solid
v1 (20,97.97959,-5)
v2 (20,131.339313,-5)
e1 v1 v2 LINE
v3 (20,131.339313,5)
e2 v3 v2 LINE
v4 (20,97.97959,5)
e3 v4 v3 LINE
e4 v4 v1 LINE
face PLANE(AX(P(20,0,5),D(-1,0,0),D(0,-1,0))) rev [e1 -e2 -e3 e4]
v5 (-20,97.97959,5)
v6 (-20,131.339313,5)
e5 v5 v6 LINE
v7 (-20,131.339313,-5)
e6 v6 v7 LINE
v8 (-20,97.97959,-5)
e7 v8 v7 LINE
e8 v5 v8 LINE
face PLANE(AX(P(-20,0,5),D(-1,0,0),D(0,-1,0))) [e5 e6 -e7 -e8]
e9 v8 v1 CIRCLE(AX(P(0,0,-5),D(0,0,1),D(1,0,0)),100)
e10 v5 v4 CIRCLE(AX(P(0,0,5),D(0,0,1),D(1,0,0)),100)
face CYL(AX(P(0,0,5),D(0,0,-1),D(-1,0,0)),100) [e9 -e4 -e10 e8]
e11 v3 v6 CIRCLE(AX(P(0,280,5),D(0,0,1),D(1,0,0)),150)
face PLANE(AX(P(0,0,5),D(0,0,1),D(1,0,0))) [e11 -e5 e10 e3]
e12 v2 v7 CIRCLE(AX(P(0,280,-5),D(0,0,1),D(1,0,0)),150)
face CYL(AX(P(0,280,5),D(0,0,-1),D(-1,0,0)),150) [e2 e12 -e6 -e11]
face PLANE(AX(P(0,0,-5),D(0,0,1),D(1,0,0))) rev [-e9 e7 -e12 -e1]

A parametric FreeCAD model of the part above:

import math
import FreeCAD as App
import Part
import Sketcher
from FreeCAD import Vector

doc = App.newDocument("Part")
body = doc.addObject("PartDesign::Body", "Body")

# Sketch on XY plane
sketch1 = body.newObject("Sketcher::SketchObject", "Sketch")
sketch1.AttachmentSupport = (doc.getObject("XY_Plane"), [""])
sketch1.MapMode = "FlatFace"
sketch1.addGeometry([
    Part.ArcOfCircle(Part.Circle(Vector(0, 280, 0), Vector(0, 0, 1), 150), math.radians(-82), math.radians(262)),
    Part.LineSegment(Vector(-20, 131, 0), Vector(-20, 98, 0)),
    Part.ArcOfCircle(Part.Circle(Vector(0, 0, 0), Vector(0, 0, 1), 100), math.radians(102), math.radians(438)),
    Part.LineSegment(Vector(20, 98, 0), Vector(20, 131, 0)),
], False)
sketch1.addConstraint([
    Sketcher.Constraint("Coincident", 0, 2, 1, 1),
    Sketcher.Constraint("Coincident", 1, 2, 2, 1),
    Sketcher.Constraint("Coincident", 2, 2, 3, 1),
    Sketcher.Constraint("Coincident", 3, 2, 0, 1),
    Sketcher.Constraint("Vertical", 1),
    Sketcher.Constraint("Vertical", 3),
    Sketcher.Constraint("Coincident", 2, 3, -1, 1),
    Sketcher.Constraint("Symmetric", 0, 2, 3, 2, -2),
    Sketcher.Constraint("Radius", 0, 150.0),
    Sketcher.Constraint("Radius", 2, 100.0),
    Sketcher.Constraint("DistanceY", -1, 1, 0, 3, 280.0),
    Sketcher.Constraint("DistanceX", 0, 2, -1, 1, 20.0),
])
pad1 = body.newObject("PartDesign::Pad", "Pad")
pad1.Profile = sketch1
pad1.Length = 10
pad1.Midplane = True

doc.recompute()
